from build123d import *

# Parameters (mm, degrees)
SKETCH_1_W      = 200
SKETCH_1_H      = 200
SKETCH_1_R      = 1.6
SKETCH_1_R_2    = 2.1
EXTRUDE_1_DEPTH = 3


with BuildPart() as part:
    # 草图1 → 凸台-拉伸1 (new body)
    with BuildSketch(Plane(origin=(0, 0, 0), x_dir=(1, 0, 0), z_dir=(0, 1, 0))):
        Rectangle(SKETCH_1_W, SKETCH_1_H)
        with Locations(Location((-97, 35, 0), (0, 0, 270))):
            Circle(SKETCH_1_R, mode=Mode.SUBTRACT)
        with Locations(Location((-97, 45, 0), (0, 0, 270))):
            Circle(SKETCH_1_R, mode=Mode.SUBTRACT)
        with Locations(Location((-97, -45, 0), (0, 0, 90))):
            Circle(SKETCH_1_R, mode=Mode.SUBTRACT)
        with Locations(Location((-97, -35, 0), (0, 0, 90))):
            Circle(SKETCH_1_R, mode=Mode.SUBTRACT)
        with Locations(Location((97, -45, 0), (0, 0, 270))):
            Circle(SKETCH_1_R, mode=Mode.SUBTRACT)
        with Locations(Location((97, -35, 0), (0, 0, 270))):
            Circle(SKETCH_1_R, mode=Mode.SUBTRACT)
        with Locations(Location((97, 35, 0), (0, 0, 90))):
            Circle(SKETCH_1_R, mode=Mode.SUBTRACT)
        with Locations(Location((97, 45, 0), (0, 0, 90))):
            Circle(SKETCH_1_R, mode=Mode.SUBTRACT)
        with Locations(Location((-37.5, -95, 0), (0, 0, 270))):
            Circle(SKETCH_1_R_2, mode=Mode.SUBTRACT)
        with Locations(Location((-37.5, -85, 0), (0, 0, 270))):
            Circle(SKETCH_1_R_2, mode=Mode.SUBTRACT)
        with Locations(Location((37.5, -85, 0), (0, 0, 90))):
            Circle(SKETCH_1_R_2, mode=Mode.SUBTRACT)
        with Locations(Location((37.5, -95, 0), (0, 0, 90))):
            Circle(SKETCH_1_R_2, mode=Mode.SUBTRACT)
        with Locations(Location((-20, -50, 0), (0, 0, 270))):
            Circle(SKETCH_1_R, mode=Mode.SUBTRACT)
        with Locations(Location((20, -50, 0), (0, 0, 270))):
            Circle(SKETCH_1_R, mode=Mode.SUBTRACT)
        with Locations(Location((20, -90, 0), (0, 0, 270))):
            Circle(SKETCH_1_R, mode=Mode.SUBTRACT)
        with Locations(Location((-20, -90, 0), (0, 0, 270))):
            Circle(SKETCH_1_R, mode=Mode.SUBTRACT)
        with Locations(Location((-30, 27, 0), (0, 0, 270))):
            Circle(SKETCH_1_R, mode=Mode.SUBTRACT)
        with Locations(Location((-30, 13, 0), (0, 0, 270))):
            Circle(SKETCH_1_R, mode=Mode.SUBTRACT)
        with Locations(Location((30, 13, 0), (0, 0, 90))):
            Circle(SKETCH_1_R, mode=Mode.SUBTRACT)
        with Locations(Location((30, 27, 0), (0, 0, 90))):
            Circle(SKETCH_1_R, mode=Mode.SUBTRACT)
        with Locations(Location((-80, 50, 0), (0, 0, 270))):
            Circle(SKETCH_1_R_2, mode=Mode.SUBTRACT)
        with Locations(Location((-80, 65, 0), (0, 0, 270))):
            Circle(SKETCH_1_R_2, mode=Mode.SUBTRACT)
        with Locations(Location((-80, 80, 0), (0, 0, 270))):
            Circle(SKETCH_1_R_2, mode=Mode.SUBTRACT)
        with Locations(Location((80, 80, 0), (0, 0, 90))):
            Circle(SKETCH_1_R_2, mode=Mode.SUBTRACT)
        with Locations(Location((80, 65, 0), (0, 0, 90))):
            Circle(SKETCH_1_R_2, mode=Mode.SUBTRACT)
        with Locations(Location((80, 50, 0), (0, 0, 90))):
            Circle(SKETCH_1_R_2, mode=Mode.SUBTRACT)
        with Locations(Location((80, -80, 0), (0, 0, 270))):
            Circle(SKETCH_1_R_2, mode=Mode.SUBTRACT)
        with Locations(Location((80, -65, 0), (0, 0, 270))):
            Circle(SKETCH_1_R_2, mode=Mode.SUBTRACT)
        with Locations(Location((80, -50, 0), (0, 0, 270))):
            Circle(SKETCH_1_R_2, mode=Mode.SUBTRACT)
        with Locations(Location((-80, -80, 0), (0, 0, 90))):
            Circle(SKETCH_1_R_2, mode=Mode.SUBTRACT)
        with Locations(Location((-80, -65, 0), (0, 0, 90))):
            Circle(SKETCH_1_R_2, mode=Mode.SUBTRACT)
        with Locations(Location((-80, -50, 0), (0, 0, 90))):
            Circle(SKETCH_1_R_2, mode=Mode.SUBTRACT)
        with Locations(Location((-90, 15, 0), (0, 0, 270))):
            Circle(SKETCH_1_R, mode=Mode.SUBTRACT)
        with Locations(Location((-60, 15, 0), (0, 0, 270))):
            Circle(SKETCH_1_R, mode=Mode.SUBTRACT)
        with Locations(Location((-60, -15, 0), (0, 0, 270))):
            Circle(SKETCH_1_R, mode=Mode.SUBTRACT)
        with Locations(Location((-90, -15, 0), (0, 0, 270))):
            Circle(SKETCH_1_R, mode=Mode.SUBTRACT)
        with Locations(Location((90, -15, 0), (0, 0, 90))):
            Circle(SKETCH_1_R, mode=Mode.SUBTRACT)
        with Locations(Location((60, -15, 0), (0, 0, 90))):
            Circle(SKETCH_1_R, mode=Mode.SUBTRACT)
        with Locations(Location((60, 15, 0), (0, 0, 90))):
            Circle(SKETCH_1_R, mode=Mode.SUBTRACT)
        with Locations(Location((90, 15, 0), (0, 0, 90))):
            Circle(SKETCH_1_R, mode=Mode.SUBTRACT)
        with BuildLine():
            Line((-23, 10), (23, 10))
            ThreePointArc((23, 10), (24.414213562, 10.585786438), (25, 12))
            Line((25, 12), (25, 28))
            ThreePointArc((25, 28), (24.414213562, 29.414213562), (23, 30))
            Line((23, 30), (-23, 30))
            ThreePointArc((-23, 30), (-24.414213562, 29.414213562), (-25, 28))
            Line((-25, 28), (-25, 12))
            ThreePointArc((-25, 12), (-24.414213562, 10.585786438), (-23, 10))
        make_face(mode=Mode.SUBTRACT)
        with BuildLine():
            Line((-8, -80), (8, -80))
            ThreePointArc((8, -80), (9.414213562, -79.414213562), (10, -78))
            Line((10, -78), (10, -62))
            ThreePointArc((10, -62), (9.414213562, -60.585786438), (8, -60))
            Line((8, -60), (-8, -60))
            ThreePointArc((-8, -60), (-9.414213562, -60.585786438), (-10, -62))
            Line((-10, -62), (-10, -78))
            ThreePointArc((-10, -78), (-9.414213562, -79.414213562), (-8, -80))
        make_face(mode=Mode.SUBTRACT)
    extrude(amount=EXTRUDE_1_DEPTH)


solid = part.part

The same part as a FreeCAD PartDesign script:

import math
import FreeCAD as App
import Part
import Sketcher
from FreeCAD import Vector

doc = App.newDocument("Part")
body = doc.addObject("PartDesign::Body", "Body")

# Sketch on XZ plane
sketch1 = body.newObject("Sketcher::SketchObject", "Sketch")
sketch1.AttachmentSupport = (doc.getObject("XZ_Plane"), [""])
sketch1.MapMode = "FlatFace"
sketch1.addGeometry(Part.LineSegment(Vector(-100, -100, 0), Vector(-100, 100, 0)), False)
sketch1.addGeometry(Part.LineSegment(Vector(-100, 100, 0), Vector(100, 100, 0)), False)
sketch1.addGeometry(Part.LineSegment(Vector(100, 100, 0), Vector(100, -100, 0)), False)
sketch1.addGeometry(Part.LineSegment(Vector(100, -100, 0), Vector(-100, -100, 0)), False)
sketch1.addGeometry(Part.Circle(Vector(-80, 80, 0), Vector(0, 0, 1), 2.1), False)
sketch1.addGeometry(Part.Circle(Vector(-80, 65, 0), Vector(0, 0, 1), 2.1), False)
sketch1.addGeometry(Part.Circle(Vector(-37.5, 95, 0), Vector(0, 0, 1), 2.1), False)
sketch1.addGeometry(Part.Circle(Vector(-37.5, 85, 0), Vector(0, 0, 1), 2.1), False)
sketch1.addGeometry(Part.Circle(Vector(-20, 90, 0), Vector(0, 0, 1), 1.6), False)
sketch1.addGeometry(Part.LineSegment(Vector(8, 80, 0), Vector(-8, 80, 0)), False)
sketch1.addGeometry(Part.ArcOfCircle(Part.Circle(Vector(-8, 78, 0), Vector(0, 0, 1), 2), math.radians(90), math.radians(180)), False)
sketch1.addGeometry(Part.LineSegment(Vector(-10, 78, 0), Vector(-10, 62, 0)), False)
sketch1.addGeometry(Part.ArcOfCircle(Part.Circle(Vector(-8, 62, 0), Vector(0, 0, 1), 2), math.radians(-180), math.radians(-90)), False)
sketch1.addGeometry(Part.LineSegment(Vector(-8, 60, 0), Vector(8, 60, 0)), False)
sketch1.addGeometry(Part.ArcOfCircle(Part.Circle(Vector(8, 62, 0), Vector(0, 0, 1), 2), math.radians(-90), math.radians(0)), False)
sketch1.addGeometry(Part.LineSegment(Vector(10, 62, 0), Vector(10, 78, 0)), False)
sketch1.addGeometry(Part.ArcOfCircle(Part.Circle(Vector(8, 78, 0), Vector(0, 0, 1), 2), math.radians(0), math.radians(90)), False)
sketch1.addGeometry(Part.Circle(Vector(-97, 45, 0), Vector(0, 0, 1), 1.6), False)
sketch1.addGeometry(Part.Circle(Vector(-80, 50, 0), Vector(0, 0, 1), 2.1), False)
sketch1.addGeometry(Part.Circle(Vector(-97, 35, 0), Vector(0, 0, 1), 1.6), False)
sketch1.addGeometry(Part.Circle(Vector(-90, 15, 0), Vector(0, 0, 1), 1.6), False)
sketch1.addGeometry(Part.Circle(Vector(-60, 15, 0), Vector(0, 0, 1), 1.6), False)
sketch1.addGeometry(Part.Circle(Vector(-20, 50, 0), Vector(0, 0, 1), 1.6), False)
sketch1.addGeometry(Part.Circle(Vector(20, 90, 0), Vector(0, 0, 1), 1.6), False)
sketch1.addGeometry(Part.Circle(Vector(37.5, 95, 0), Vector(0, 0, 1), 2.1), False)
sketch1.addGeometry(Part.Circle(Vector(37.5, 85, 0), Vector(0, 0, 1), 2.1), False)
sketch1.addGeometry(Part.Circle(Vector(80, 80, 0), Vector(0, 0, 1), 2.1), False)
sketch1.addGeometry(Part.Circle(Vector(80, 65, 0), Vector(0, 0, 1), 2.1), False)
sketch1.addGeometry(Part.Circle(Vector(20, 50, 0), Vector(0, 0, 1), 1.6), False)
sketch1.addGeometry(Part.Circle(Vector(80, 50, 0), Vector(0, 0, 1), 2.1), False)
sketch1.addGeometry(Part.Circle(Vector(97, 45, 0), Vector(0, 0, 1), 1.6), False)
sketch1.addGeometry(Part.Circle(Vector(97, 35, 0), Vector(0, 0, 1), 1.6), False)
sketch1.addGeometry(Part.Circle(Vector(60, 15, 0), Vector(0, 0, 1), 1.6), False)
sketch1.addGeometry(Part.Circle(Vector(90, 15, 0), Vector(0, 0, 1), 1.6), False)
sketch1.addGeometry(Part.Circle(Vector(-90, -15, 0), Vector(0, 0, 1), 1.6), False)
sketch1.addGeometry(Part.Circle(Vector(-97, -35, 0), Vector(0, 0, 1), 1.6), False)
sketch1.addGeometry(Part.Circle(Vector(-60, -15, 0), Vector(0, 0, 1), 1.6), False)
sketch1.addGeometry(Part.Circle(Vector(-30, -13, 0), Vector(0, 0, 1), 1.6), False)
sketch1.addGeometry(Part.Circle(Vector(-30, -27, 0), Vector(0, 0, 1), 1.6), False)
sketch1.addGeometry(Part.LineSegment(Vector(23, -10, 0), Vector(-23, -10, 0)), False)
sketch1.addGeometry(Part.ArcOfCircle(Part.Circle(Vector(-23, -12, 0), Vector(0, 0, 1), 2), math.radians(90), math.radians(180)), False)
sketch1.addGeometry(Part.LineSegment(Vector(-25, -12, 0), Vector(-25, -28, 0)), False)
sketch1.addGeometry(Part.ArcOfCircle(Part.Circle(Vector(-23, -28, 0), Vector(0, 0, 1), 2), math.radians(-180), math.radians(-90)), False)
sketch1.addGeometry(Part.LineSegment(Vector(-23, -30, 0), Vector(23, -30, 0)), False)
sketch1.addGeometry(Part.ArcOfCircle(Part.Circle(Vector(23, -28, 0), Vector(0, 0, 1), 2), math.radians(-90), math.radians(0)), False)
sketch1.addGeometry(Part.LineSegment(Vector(25, -28, 0), Vector(25, -12, 0)), False)
sketch1.addGeometry(Part.ArcOfCircle(Part.Circle(Vector(23, -12, 0), Vector(0, 0, 1), 2), math.radians(0), math.radians(90)), False)
sketch1.addGeometry(Part.Circle(Vector(-97, -45, 0), Vector(0, 0, 1), 1.6), False)
sketch1.addGeometry(Part.Circle(Vector(-80, -50, 0), Vector(0, 0, 1), 2.1), False)
sketch1.addGeometry(Part.Circle(Vector(-80, -65, 0), Vector(0, 0, 1), 2.1), False)
sketch1.addGeometry(Part.Circle(Vector(-80, -80, 0), Vector(0, 0, 1), 2.1), False)
sketch1.addGeometry(Part.Circle(Vector(30, -13, 0), Vector(0, 0, 1), 1.6), False)
sketch1.addGeometry(Part.Circle(Vector(30, -27, 0), Vector(0, 0, 1), 1.6), False)
sketch1.addGeometry(Part.Circle(Vector(60, -15, 0), Vector(0, 0, 1), 1.6), False)
sketch1.addGeometry(Part.Circle(Vector(90, -15, 0), Vector(0, 0, 1), 1.6), False)
sketch1.addGeometry(Part.Circle(Vector(97, -35, 0), Vector(0, 0, 1), 1.6), False)
sketch1.addGeometry(Part.Circle(Vector(97, -45, 0), Vector(0, 0, 1), 1.6), False)
sketch1.addGeometry(Part.Circle(Vector(80, -50, 0), Vector(0, 0, 1), 2.1), False)
sketch1.addGeometry(Part.Circle(Vector(80, -65, 0), Vector(0, 0, 1), 2.1), False)
sketch1.addGeometry(Part.Circle(Vector(80, -80, 0), Vector(0, 0, 1), 2.1), False)
sketch1.addConstraint(Sketcher.Constraint("Coincident", 0, 2, 1, 1))
sketch1.addConstraint(Sketcher.Constraint("Coincident", 1, 2, 2, 1))
sketch1.addConstraint(Sketcher.Constraint("Coincident", 2, 2, 3, 1))
sketch1.addConstraint(Sketcher.Constraint("Coincident", 3, 2, 0, 1))
sketch1.addConstraint(Sketcher.Constraint("Tangent", 9, 2, 10, 1))
sketch1.addConstraint(Sketcher.Constraint("Tangent", 10, 2, 11, 1))
sketch1.addConstraint(Sketcher.Constraint("Tangent", 11, 2, 12, 1))
sketch1.addConstraint(Sketcher.Constraint("Tangent", 12, 2, 13, 1))
sketch1.addConstraint(Sketcher.Constraint("Tangent", 13, 2, 14, 1))
sketch1.addConstraint(Sketcher.Constraint("Tangent", 14, 2, 15, 1))
sketch1.addConstraint(Sketcher.Constraint("Tangent", 15, 2, 16, 1))
sketch1.addConstraint(Sketcher.Constraint("Tangent", 16, 2, 9, 1))
sketch1.addConstraint(Sketcher.Constraint("Tangent", 39, 2, 40, 1))
sketch1.addConstraint(Sketcher.Constraint("Tangent", 40, 2, 41, 1))
sketch1.addConstraint(Sketcher.Constraint("Tangent", 41, 2, 42, 1))
sketch1.addConstraint(Sketcher.Constraint("Tangent", 42, 2, 43, 1))
sketch1.addConstraint(Sketcher.Constraint("Tangent", 43, 2, 44, 1))
sketch1.addConstraint(Sketcher.Constraint("Tangent", 44, 2, 45, 1))
sketch1.addConstraint(Sketcher.Constraint("Tangent", 45, 2, 46, 1))
sketch1.addConstraint(Sketcher.Constraint("Tangent", 46, 2, 39, 1))
sketch1.addConstraint(Sketcher.Constraint("Vertical", 0))
sketch1.addConstraint(Sketcher.Constraint("Horizontal", 1))
sketch1.addConstraint(Sketcher.Constraint("Vertical", 2))
sketch1.addConstraint(Sketcher.Constraint("Horizontal", 3))
sketch1.addConstraint(Sketcher.Constraint("Horizontal", 9))
sketch1.addConstraint(Sketcher.Constraint("Vertical", 11))
sketch1.addConstraint(Sketcher.Constraint("Horizontal", 13))
sketch1.addConstraint(Sketcher.Constraint("Vertical", 15))
sketch1.addConstraint(Sketcher.Constraint("Horizontal", 39))
sketch1.addConstraint(Sketcher.Constraint("Vertical", 41))
sketch1.addConstraint(Sketcher.Constraint("Horizontal", 43))
sketch1.addConstraint(Sketcher.Constraint("Vertical", 45))
sketch1.addConstraint(Sketcher.Constraint("Equal", 4, 5))
sketch1.addConstraint(Sketcher.Constraint("Equal", 5, 6))
sketch1.addConstraint(Sketcher.Constraint("Equal", 6, 7))
sketch1.addConstraint(Sketcher.Constraint("Equal", 10, 12))
sketch1.addConstraint(Sketcher.Constraint("Equal", 12, 14))
sketch1.addConstraint(Sketcher.Constraint("Equal", 14, 16))
sketch1.addConstraint(Sketcher.Constraint("Equal", 8, 17))
sketch1.addConstraint(Sketcher.Constraint("Equal", 7, 18))
sketch1.addConstraint(Sketcher.Constraint("Equal", 17, 19))
sketch1.addConstraint(Sketcher.Constraint("Equal", 19, 20))
sketch1.addConstraint(Sketcher.Constraint("Equal", 20, 21))
sketch1.addConstraint(Sketcher.Constraint("Equal", 21, 22))
sketch1.addConstraint(Sketcher.Constraint("Equal", 22, 23))
sketch1.addConstraint(Sketcher.Constraint("Equal", 18, 24))
sketch1.addConstraint(Sketcher.Constraint("Equal", 24, 25))
sketch1.addConstraint(Sketcher.Constraint("Equal", 25, 26))
sketch1.addConstraint(Sketcher.Constraint("Equal", 26, 27))
sketch1.addConstraint(Sketcher.Constraint("Equal", 23, 28))
sketch1.addConstraint(Sketcher.Constraint("Equal", 27, 29))
sketch1.addConstraint(Sketcher.Constraint("Equal", 28, 30))
sketch1.addConstraint(Sketcher.Constraint("Equal", 30, 31))
sketch1.addConstraint(Sketcher.Constraint("Equal", 31, 32))
sketch1.addConstraint(Sketcher.Constraint("Equal", 32, 33))
sketch1.addConstraint(Sketcher.Constraint("Equal", 33, 34))
sketch1.addConstraint(Sketcher.Constraint("Equal", 34, 35))
sketch1.addConstraint(Sketcher.Constraint("Equal", 35, 36))
sketch1.addConstraint(Sketcher.Constraint("Equal", 36, 37))
sketch1.addConstraint(Sketcher.Constraint("Equal", 37, 38))
sketch1.addConstraint(Sketcher.Constraint("Equal", 16, 40))
sketch1.addConstraint(Sketcher.Constraint("Equal", 40, 42))
sketch1.addConstraint(Sketcher.Constraint("Equal", 42, 44))
sketch1.addConstraint(Sketcher.Constraint("Equal", 44, 46))
sketch1.addConstraint(Sketcher.Constraint("Equal", 38, 47))
sketch1.addConstraint(Sketcher.Constraint("Equal", 29, 48))
sketch1.addConstraint(Sketcher.Constraint("Equal", 48, 49))
sketch1.addConstraint(Sketcher.Constraint("Equal", 49, 50))
sketch1.addConstraint(Sketcher.Constraint("Equal", 47, 51))
sketch1.addConstraint(Sketcher.Constraint("Equal", 51, 52))
sketch1.addConstraint(Sketcher.Constraint("Equal", 52, 53))
sketch1.addConstraint(Sketcher.Constraint("Equal", 53, 54))
sketch1.addConstraint(Sketcher.Constraint("Equal", 54, 55))
sketch1.addConstraint(Sketcher.Constraint("Equal", 55, 56))
sketch1.addConstraint(Sketcher.Constraint("Equal", 50, 57))
sketch1.addConstraint(Sketcher.Constraint("Equal", 57, 58))
sketch1.addConstraint(Sketcher.Constraint("Equal", 58, 59))
sketch1.addConstraint(Sketcher.Constraint("Symmetric", 33, 3, 34, 3, -1, 1))
sketch1.addConstraint(Sketcher.Constraint("Symmetric", 31, 3, 35, 3, -1, 1))
sketch1.addConstraint(Sketcher.Constraint("Symmetric", 32, 3, 36, 3, -1, 1))
sketch1.addConstraint(Sketcher.Constraint("Symmetric", 30, 3, 47, 3, -1, 1))
sketch1.addConstraint(Sketcher.Constraint("Symmetric", 29, 3, 48, 3, -1, 1))
sketch1.addConstraint(Sketcher.Constraint("Symmetric", 27, 3, 49, 3, -1, 1))
sketch1.addConstraint(Sketcher.Constraint("Symmetric", 26, 3, 50, 3, -1, 1))
sketch1.addConstraint(Sketcher.Constraint("Symmetric", 21, 3, 53, 3, -1, 1))
sketch1.addConstraint(Sketcher.Constraint("Symmetric", 20, 3, 54, 3, -1, 1))
sketch1.addConstraint(Sketcher.Constraint("Symmetric", 19, 3, 55, 3, -1, 1))
sketch1.addConstraint(Sketcher.Constraint("Symmetric", 17, 3, 56, 3, -1, 1))
sketch1.addConstraint(Sketcher.Constraint("Symmetric", 18, 3, 57, 3, -1, 1))
sketch1.addConstraint(Sketcher.Constraint("Symmetric", 5, 3, 58, 3, -1, 1))
sketch1.addConstraint(Sketcher.Constraint("Symmetric", 4, 3, 59, 3, -1, 1))
sketch1.addConstraint(Sketcher.Constraint("Symmetric", 0, 2, 2, 2, -1, 1))
sketch1.addConstraint(Sketcher.Constraint("Symmetric", 8, 3, 23, 3, -2))
sketch1.addConstraint(Sketcher.Constraint("Symmetric", 6, 3, 24, 3, -2))
sketch1.addConstraint(Sketcher.Constraint("Symmetric", 7, 3, 25, 3, -2))
sketch1.addConstraint(Sketcher.Constraint("Symmetric", 4, 3, 26, 3, -2))
sketch1.addConstraint(Sketcher.Constraint("Symmetric", 5, 3, 27, 3, -2))
sketch1.addConstraint(Sketcher.Constraint("Symmetric", 22, 3, 28, 3, -2))
sketch1.addConstraint(Sketcher.Constraint("Symmetric", 18, 3, 29, 3, -2))
sketch1.addConstraint(Sketcher.Constraint("Symmetric", 17, 3, 30, 3, -2))
sketch1.addConstraint(Sketcher.Constraint("Symmetric", 19, 3, 31, 3, -2))
sketch1.addConstraint(Sketcher.Constraint("Symmetric", 21, 3, 32, 3, -2))
sketch1.addConstraint(Sketcher.Constraint("Symmetric", 20, 3, 33, 3, -2))
sketch1.addConstraint(Sketcher.Constraint("Symmetric", 37, 3, 51, 3, -2))
sketch1.addConstraint(Sketcher.Constraint("Symmetric", 38, 3, 52, 3, -2))
sketch1.addConstraint(Sketcher.Constraint("Horizontal", 20, 3, 21, 3))
sketch1.addConstraint(Sketcher.Constraint("Horizontal", 18, 3, 22, 3))
sketch1.addConstraint(Sketcher.Constraint("Horizontal", 26, 3, 9, 2))
sketch1.addConstraint(Sketcher.Constraint("Vertical", 4, 3, 5, 3))
sketch1.addConstraint(Sketcher.Constraint("Vertical", 6, 3, 7, 3))
sketch1.addConstraint(Sketcher.Constraint("Vertical", 5, 3, 18, 3))
sketch1.addConstraint(Sketcher.Constraint("Vertical", 17, 3, 19, 3))
sketch1.addConstraint(Sketcher.Constraint("Vertical", 8, 3, 22, 3))
sketch1.addConstraint(Sketcher.Constraint("Vertical", 37, 3, 38, 3))
sketch1.addConstraint(Sketcher.Constraint("Equal", 3, 0))
sketch1.addConstraint(Sketcher.Constraint("Equal", 13, 11))
sketch1.addConstraint(Sketcher.Constraint("Equal", 15, 41))
sketch1.addConstraint(Sketcher.Constraint("Radius", 10, 2.0))
sketch1.addConstraint(Sketcher.Constraint("Diameter", 4, 4.2))
sketch1.addConstraint(Sketcher.Constraint("Diameter", 8, 3.2))
sketch1.addConstraint(Sketcher.Constraint("DistanceX", 1, 1, 1, 2, 200.0))
sketch1.addConstraint(Sketcher.Constraint("DistanceX", 9, 2, 9, 1, 16.0))
sketch1.addConstraint(Sketcher.Constraint("DistanceX", 39, 2, 39, 1, 46.0))
sketch1.addConstraint(Sketcher.Constraint("DistanceX", 4, 3, -1, 1, 80.0))
sketch1.addConstraint(Sketcher.Constraint("DistanceY", -1, 1, 4, 3, 80.0))
sketch1.addConstraint(Sketcher.Constraint("DistanceY", -1, 1, 5, 3, 65.0))
sketch1.addConstraint(Sketcher.Constraint("DistanceY", -1, 1, 6, 3, 95.0))
sketch1.addConstraint(Sketcher.Constraint("DistanceY", -1, 1, 7, 3, 85.0))
sketch1.addConstraint(Sketcher.Constraint("DistanceX", 8, 3, -1, 1, 20.0))
sketch1.addConstraint(Sketcher.Constraint("DistanceY", -1, 1, 8, 3, 90.0))
sketch1.addConstraint(Sketcher.Constraint("DistanceX", 10, 3, -1, 1, 8.0))
sketch1.addConstraint(Sketcher.Constraint("DistanceX", 17, 3, -1, 1, 97.0))
sketch1.addConstraint(Sketcher.Constraint("DistanceY", -1, 1, 17, 3, 45.0))
sketch1.addConstraint(Sketcher.Constraint("DistanceY", -1, 1, 18, 3, 50.0))
sketch1.addConstraint(Sketcher.Constraint("DistanceY", -1, 1, 19, 3, 35.0))
sketch1.addConstraint(Sketcher.Constraint("DistanceX", 20, 3, -1, 1, 90.0))
sketch1.addConstraint(Sketcher.Constraint("DistanceY", -1, 1, 20, 3, 15.0))
sketch1.addConstraint(Sketcher.Constraint("DistanceX", 21, 3, -1, 1, 60.0))
sketch1.addConstraint(Sketcher.Constraint("DistanceX", 37, 3, -1, 1, 30.0))
sketch1.addConstraint(Sketcher.Constraint("DistanceY", 37, 3, -1, 1, 13.0))
sketch1.addConstraint(Sketcher.Constraint("DistanceY", 38, 3, -1, 1, 27.0))
sketch1.addConstraint(Sketcher.Constraint("DistanceX", 40, 3, -1, 1, 23.0))
sketch1.addConstraint(Sketcher.Constraint("DistanceY", 40, 3, -1, 1, 12.0))
sketch1.addConstraint(Sketcher.Constraint("DistanceX", 6, 3, -1, 1, 37.5))
pad1 = body.newObject("PartDesign::Pad", "Pad")
pad1.Profile = sketch1
pad1.Length = 3
pad1.Reversed = True

doc.recompute()
